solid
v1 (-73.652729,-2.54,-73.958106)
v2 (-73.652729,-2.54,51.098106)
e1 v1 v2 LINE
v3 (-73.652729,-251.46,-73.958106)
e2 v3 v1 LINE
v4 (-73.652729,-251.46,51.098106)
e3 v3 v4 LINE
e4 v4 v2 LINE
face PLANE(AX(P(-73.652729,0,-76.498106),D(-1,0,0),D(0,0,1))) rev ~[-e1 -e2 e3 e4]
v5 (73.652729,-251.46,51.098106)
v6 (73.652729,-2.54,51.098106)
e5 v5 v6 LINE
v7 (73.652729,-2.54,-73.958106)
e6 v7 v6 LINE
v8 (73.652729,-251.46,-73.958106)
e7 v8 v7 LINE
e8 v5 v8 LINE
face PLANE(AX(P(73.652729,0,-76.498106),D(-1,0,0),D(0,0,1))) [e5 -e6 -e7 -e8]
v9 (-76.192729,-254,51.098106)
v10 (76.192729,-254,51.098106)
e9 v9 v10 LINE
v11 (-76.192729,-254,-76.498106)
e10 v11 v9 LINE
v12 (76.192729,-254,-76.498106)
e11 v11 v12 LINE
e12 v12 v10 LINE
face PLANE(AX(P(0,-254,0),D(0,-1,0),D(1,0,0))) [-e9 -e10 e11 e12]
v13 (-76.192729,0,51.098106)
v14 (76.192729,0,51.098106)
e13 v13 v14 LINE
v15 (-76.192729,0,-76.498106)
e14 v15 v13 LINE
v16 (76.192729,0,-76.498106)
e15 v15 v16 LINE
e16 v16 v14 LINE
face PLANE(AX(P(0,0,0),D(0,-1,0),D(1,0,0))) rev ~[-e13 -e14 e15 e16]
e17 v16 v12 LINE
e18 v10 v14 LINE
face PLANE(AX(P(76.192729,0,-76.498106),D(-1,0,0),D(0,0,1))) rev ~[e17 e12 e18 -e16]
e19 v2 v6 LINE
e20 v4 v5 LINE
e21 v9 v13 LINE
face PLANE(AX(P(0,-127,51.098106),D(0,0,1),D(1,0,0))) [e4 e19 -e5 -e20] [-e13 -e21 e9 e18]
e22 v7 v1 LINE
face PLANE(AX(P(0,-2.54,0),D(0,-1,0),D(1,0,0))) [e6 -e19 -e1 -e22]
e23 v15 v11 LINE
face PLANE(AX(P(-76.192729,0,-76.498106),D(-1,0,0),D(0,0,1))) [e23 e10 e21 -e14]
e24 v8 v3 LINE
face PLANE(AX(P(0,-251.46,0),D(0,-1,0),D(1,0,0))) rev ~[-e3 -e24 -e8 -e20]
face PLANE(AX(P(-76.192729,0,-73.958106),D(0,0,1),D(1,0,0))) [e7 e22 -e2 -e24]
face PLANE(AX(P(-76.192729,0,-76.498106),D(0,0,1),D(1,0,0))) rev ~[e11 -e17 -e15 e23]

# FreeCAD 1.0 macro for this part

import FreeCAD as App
import Part
import Sketcher

V = App.Vector
Q = App.Units.Quantity


def faces_at(feature, points):
    """Names of the faces that lie closest to the given points."""
    faces = feature.Shape.Faces
    near = lambda p: min(range(len(faces)), key=lambda i: faces[i].distToShape(Part.Vertex(*p))[0])
    return sorted({f"Face{near(p) + 1}" for p in points})


def add_polygon(sketch, points):
    """Adds a closed chain of lines whose ends are joined by coincident constraints."""
    first, n = sketch.GeometryCount, len(points)
    for a, b in zip(points, points[1:] + points[:1]):
        sketch.addGeometry(Part.LineSegment(App.Vector(*a, 0), App.Vector(*b, 0)), False)
    for i in range(n):
        sketch.addConstraint(Sketcher.Constraint("Coincident", first + i, 2, first + (i + 1) % n, 1))

doc = App.newDocument("Part")
body = doc.addObject("PartDesign::Body", "Body")

sketch1 = body.newObject("Sketcher::SketchObject", "Sketch")
sketch1.AttachmentSupport = (doc.getObject("XZ_Plane"), [""])
sketch1.MapMode = "FlatFace"
add_polygon(sketch1, [(-76, 76), (-76, -76), (76, -76), (76, 76)])
sketch1.addConstraint([
    Sketcher.Constraint("Vertical", 0),
    Sketcher.Constraint("Horizontal", 1),
    Sketcher.Constraint("Vertical", 2),
    Sketcher.Constraint("Horizontal", 3),
    Sketcher.Constraint("Symmetric", 0, 2, 2, 2, -1, 1),
    Sketcher.Constraint("DistanceX", 1, 1, 1, 2, 152.385458),
    Sketcher.Constraint("DistanceY", 0, 2, 0, 1, 152.996212),
])
pad1 = body.newObject("PartDesign::Pad", "Pad")
pad1.Profile = sketch1
pad1.Length = Q("10 in")

sketch2 = body.newObject("Sketcher::SketchObject", "Sketch001")
sketch2.AttachmentSupport = (doc.getObject("XY_Plane"), [""])
sketch2.MapMode = "FlatFace"
sketch2.AttachmentOffset = App.Placement(V(0, 0, 76.498106), App.Rotation())
add_polygon(sketch2, [(-76, 0), (-76, -254), (76, -254), (76, 0)])
sketch2.addConstraint([
    Sketcher.Constraint("Vertical", 0),
    Sketcher.Constraint("Horizontal", 1),
    Sketcher.Constraint("Vertical", 2),
    Sketcher.Constraint("Horizontal", 3),
    Sketcher.Constraint("Symmetric", 2, 2, 3, 2, -1, 1),
    Sketcher.Constraint("DistanceY", 0, 2, 0, 1, Q("10 in")),
    Sketcher.Constraint("DistanceX", 1, 1, 1, 2, 152.385458),
])
pocket1 = body.newObject("PartDesign::Pocket", "Pocket")
pocket1.Profile = sketch2
pocket1.Length = Q("1 in")
doc.recompute()

thickness = body.newObject("PartDesign::Thickness", "Thickness")
thickness.Base = (pocket1, faces_at(pocket1, [(0, -127, 51.098)]))
thickness.Value = Q("0.1 in")
thickness.Reversed = True
thickness.Join = "Arc"

doc.recompute()
